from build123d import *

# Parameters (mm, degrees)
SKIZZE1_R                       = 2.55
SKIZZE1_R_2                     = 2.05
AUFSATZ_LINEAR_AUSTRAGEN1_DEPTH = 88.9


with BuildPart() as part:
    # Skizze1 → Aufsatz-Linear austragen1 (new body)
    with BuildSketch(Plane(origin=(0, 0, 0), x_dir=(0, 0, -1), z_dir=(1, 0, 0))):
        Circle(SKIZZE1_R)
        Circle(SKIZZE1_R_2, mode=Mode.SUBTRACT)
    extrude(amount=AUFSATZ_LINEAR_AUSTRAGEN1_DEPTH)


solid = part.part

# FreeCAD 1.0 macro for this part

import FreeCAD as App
import Part
import Sketcher
Q = App.Units.Quantity

doc = App.newDocument("Part")
params = doc.addObject("Spreadsheet::Sheet", "Params")
for row, (alias, value) in enumerate([
    ("sketch1_diameter", "5.1 mm"),
    ("sketch1_diameter2", "4.1 mm"),
    ("pad1_length", "88.9 mm"),
], start=1):
    params.set(f"A{row}", alias)
    params.set(f"B{row}", "=" + value)
    params.setAlias(f"B{row}", alias)

body = doc.addObject("PartDesign::Body", "Body")

sketch1 = doc.addObject("Sketcher::SketchObject", "Sketch")
body.addObject(sketch1)
sketch1.AttachmentSupport = (doc.YZ_Plane, [""])
sketch1.MapMode = "FlatFace"
sketch1.addGeometry([
    Part.Circle(App.Vector(0, 0, 0), App.Vector(0, 0, 1), 2.55),
    Part.Circle(App.Vector(0, 0, 0), App.Vector(0, 0, 1), 2.05),
], False)
sketch1.addConstraint([
    Sketcher.Constraint("Coincident", 0, 3, -1, 1),
    Sketcher.Constraint("Coincident", 1, 3, -1, 1),
    Sketcher.Constraint("Diameter", 0, Q("5.1 mm")),
    Sketcher.Constraint("Diameter", 1, Q("4.1 mm")),
])
sketch1.setExpression("Constraints[2]", "Params.sketch1_diameter")
sketch1.setExpression("Constraints[3]", "Params.sketch1_diameter2")
pad1 = doc.addObject("PartDesign::Pad", "Pad")
body.addObject(pad1)
pad1.Profile = sketch1
pad1.setExpression("Length", "Params.pad1_length")

doc.recompute()
